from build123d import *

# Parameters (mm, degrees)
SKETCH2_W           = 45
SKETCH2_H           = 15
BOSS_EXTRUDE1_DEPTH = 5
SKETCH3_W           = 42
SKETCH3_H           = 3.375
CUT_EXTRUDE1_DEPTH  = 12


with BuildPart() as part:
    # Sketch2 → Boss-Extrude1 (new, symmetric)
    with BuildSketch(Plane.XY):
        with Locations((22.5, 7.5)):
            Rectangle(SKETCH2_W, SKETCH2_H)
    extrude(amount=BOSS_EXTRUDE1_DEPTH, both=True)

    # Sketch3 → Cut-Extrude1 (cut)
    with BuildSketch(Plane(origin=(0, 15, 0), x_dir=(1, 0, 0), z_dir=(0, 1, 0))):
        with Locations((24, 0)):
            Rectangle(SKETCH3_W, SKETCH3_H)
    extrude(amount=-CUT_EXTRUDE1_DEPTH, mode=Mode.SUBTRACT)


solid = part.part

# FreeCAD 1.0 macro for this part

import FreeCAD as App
import Part
import Sketcher


def add_polygon(sketch, points):
    """Adds a closed chain of lines whose ends are joined by coincident constraints."""
    first, n = sketch.GeometryCount, len(points)
    for a, b in zip(points, points[1:] + points[:1]):
        sketch.addGeometry(Part.LineSegment(App.Vector(*a, 0), App.Vector(*b, 0)), False)
    for i in range(n):
        sketch.addConstraint(Sketcher.Constraint("Coincident", first + i, 2, first + (i + 1) % n, 1))

doc = App.newDocument("Part")
body = doc.addObject("PartDesign::Body", "Body")

# Sketch on XY plane
sketch1 = doc.addObject("Sketcher::SketchObject", "Sketch")
body.addObject(sketch1)
sketch1.AttachmentSupport = (doc.XY_Plane, [""])
sketch1.MapMode = "FlatFace"
add_polygon(sketch1, [(0, 15), (0, 0), (45, 0), (45, 15)])  # lines 0-3
sketch1.addConstraint([
    Sketcher.Constraint("Vertical", 0),
    Sketcher.Constraint("Horizontal", 1),
    Sketcher.Constraint("Vertical", 2),
    Sketcher.Constraint("Horizontal", 3),
    Sketcher.Constraint("Coincident", 0, 2, -1, 1),
    Sketcher.Constraint("DistanceX", 1, 1, 1, 2, 45.0),
    Sketcher.Constraint("DistanceY", 0, 2, 0, 1, 15.0),
])
pad1 = doc.addObject("PartDesign::Pad", "Pad")
body.addObject(pad1)
pad1.Profile = sketch1
pad1.Length = 10
pad1.Midplane = True

# Sketch on XZ plane
sketch2 = doc.addObject("Sketcher::SketchObject", "Sketch001")
body.addObject(sketch2)
sketch2.AttachmentSupport = (doc.XZ_Plane, [""])
sketch2.MapMode = "FlatFace"
sketch2.AttachmentOffset = App.Placement(App.Vector(0, 0, -15), App.Rotation())
add_polygon(sketch2, [(3, -1.7), (3, 1.7), (45, 1.7), (45, -1.7)])  # lines 0-3
sketch2.addConstraint([
    Sketcher.Constraint("Vertical", 0),
    Sketcher.Constraint("Horizontal", 1),
    Sketcher.Constraint("Vertical", 2),
    Sketcher.Constraint("Horizontal", 3),
    Sketcher.Constraint("DistanceX", 1, 1, 1, 2, 42.0),
    Sketcher.Constraint("DistanceX", -1, 1, 0, 2, 3.0),
    Sketcher.Constraint("DistanceY", 0, 1, 0, 2, 3.375),
    Sketcher.Constraint("DistanceY", -1, 1, 0, 2, 1.6875),
])
pocket1 = doc.addObject("PartDesign::Pocket", "Pocket")
body.addObject(pocket1)
pocket1.Profile = sketch2
pocket1.Length = 12
pocket1.Reversed = True

doc.recompute()
